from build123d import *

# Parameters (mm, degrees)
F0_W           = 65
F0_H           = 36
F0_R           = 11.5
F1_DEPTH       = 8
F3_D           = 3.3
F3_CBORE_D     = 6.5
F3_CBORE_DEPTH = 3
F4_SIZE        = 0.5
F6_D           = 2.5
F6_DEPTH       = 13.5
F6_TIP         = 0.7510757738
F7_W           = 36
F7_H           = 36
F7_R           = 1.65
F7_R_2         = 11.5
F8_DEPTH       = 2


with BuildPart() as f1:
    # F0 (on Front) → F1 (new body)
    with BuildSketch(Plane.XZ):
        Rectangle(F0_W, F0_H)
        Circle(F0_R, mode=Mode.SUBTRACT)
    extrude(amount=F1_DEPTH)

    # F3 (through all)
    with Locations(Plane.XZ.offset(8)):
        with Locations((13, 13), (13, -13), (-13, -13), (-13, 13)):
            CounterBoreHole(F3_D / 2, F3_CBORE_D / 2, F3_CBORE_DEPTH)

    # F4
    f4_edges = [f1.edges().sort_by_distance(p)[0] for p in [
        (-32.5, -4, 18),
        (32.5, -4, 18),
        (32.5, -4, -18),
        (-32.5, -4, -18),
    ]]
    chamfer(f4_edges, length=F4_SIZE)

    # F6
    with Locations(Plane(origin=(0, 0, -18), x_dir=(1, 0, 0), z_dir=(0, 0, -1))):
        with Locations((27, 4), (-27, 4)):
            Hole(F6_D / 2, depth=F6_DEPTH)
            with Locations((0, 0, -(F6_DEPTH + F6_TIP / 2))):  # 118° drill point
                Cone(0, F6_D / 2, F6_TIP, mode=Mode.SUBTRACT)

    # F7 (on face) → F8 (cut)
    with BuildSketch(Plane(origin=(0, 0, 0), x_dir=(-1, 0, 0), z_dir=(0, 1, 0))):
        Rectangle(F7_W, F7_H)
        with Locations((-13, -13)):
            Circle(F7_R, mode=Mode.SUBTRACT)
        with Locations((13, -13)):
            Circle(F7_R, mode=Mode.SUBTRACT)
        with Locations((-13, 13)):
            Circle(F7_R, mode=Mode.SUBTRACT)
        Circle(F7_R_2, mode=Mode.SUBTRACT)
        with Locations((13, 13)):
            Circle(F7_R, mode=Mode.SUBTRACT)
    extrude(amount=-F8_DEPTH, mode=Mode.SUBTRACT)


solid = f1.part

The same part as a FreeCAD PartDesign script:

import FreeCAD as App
import Part
import Sketcher
from FreeCAD import Vector


def edges_at(feature, points):
    """Names of the edges that pass closest to the given points."""
    edges = feature.Shape.Edges
    near = lambda p: min(range(len(edges)), key=lambda i: edges[i].distToShape(Part.Vertex(*p))[0])
    return sorted({f"Edge{near(p) + 1}" for p in points})


def add_polygon(sketch, points):
    """Adds a closed chain of lines whose ends are joined by coincident constraints."""
    first, n = sketch.GeometryCount, len(points)
    for a, b in zip(points, points[1:] + points[:1]):
        sketch.addGeometry(Part.LineSegment(App.Vector(*a, 0), App.Vector(*b, 0)), False)
    for i in range(n):
        sketch.addConstraint(Sketcher.Constraint("Coincident", first + i, 2, first + (i + 1) % n, 1))

doc = App.newDocument("Part")
body = doc.addObject("PartDesign::Body", "Body")

# Sketch on XZ plane
sketch1 = doc.addObject("Sketcher::SketchObject", "Sketch")
body.addObject(sketch1)
sketch1.AttachmentSupport = (doc.XZ_Plane, [""])
sketch1.MapMode = "FlatFace"
add_polygon(sketch1, [(-32, 18), (-32, -18), (32, -18), (32, 18)])  # lines 0-3
sketch1.addGeometry(Part.Circle(Vector(0, 0, 0), Vector(0, 0, 1), 12), False)  # 4
sketch1.addConstraint([
    Sketcher.Constraint("Vertical", 0),
    Sketcher.Constraint("Horizontal", 1),
    Sketcher.Constraint("Vertical", 2),
    Sketcher.Constraint("Horizontal", 3),
    Sketcher.Constraint("Coincident", 4, 3, -1, 1),
    Sketcher.Constraint("Symmetric", 0, 2, 2, 2, -1, 1),
    Sketcher.Constraint("Diameter", 4, 23.0),
    Sketcher.Constraint("DistanceX", 1, 1, 1, 2, 65.0),
    Sketcher.Constraint("DistanceY", 0, 2, 0, 1, 36.0),
])
pad1 = doc.addObject("PartDesign::Pad", "Pad")
body.addObject(pad1)
pad1.Profile = sketch1
pad1.Length = 8

# Sketch on XZ plane
sketch2 = doc.addObject("Sketcher::SketchObject", "Sketch001")
body.addObject(sketch2)
sketch2.AttachmentSupport = (doc.XZ_Plane, [""])
sketch2.MapMode = "FlatFace"
sketch2.AttachmentOffset = App.Placement(Vector(0, 0, 8), App.Rotation())
sketch2.addGeometry([
    Part.Circle(Vector(13, 13, 0), Vector(0, 0, 1), 1.6),
    Part.Circle(Vector(13, -13, 0), Vector(0, 0, 1), 1.6),
    Part.Circle(Vector(-13, -13, 0), Vector(0, 0, 1), 1.6),
    Part.Circle(Vector(-13, 13, 0), Vector(0, 0, 1), 1.6),
], False)
sketch2.addConstraint([
    Sketcher.Constraint("Equal", 0, 1),
    Sketcher.Constraint("Equal", 1, 2),
    Sketcher.Constraint("Equal", 2, 3),
    Sketcher.Constraint("Symmetric", 0, 3, 2, 3, -1, 1),
    Sketcher.Constraint("Symmetric", 1, 3, 3, 3, -1, 1),
    Sketcher.Constraint("Symmetric", 1, 3, 2, 3, -2),
    Sketcher.Constraint("Diameter", 0, 3.3),
    Sketcher.Constraint("DistanceX", -1, 1, 0, 3, 13.0),
    Sketcher.Constraint("DistanceY", -1, 1, 0, 3, 13.0),
])
doc.recompute()
hole = doc.addObject("PartDesign::Hole", "Hole")
body.addObject(hole)
hole.Profile = sketch2
hole.ThreadType = "None"
hole.Diameter = 3.3
hole.DepthType = "ThroughAll"
hole.HoleCutType = "Counterbore"
hole.HoleCutDiameter = 6.5
hole.HoleCutDepth = 3
doc.recompute()

chamfer = doc.addObject("PartDesign::Chamfer", "Chamfer")
body.addObject(chamfer)
chamfer.Base = (hole, edges_at(hole, [
    (-32.5, -4, 18),
    (32.5, -4, 18),
    (32.5, -4, -18),
    (-32.5, -4, -18),
]))
chamfer.Size = 0.5

# Sketch on XY plane
sketch3 = doc.addObject("Sketcher::SketchObject", "Sketch002")
body.addObject(sketch3)
sketch3.AttachmentSupport = (doc.XY_Plane, [""])
sketch3.MapMode = "FlatFace"
sketch3.AttachmentOffset = App.Placement(Vector(0, 0, -18), App.Rotation())
sketch3.addGeometry([
    Part.Circle(Vector(27, -4, 0), Vector(0, 0, 1), 1.2),
    Part.Circle(Vector(-27, -4, 0), Vector(0, 0, 1), 1.2),
], False)
sketch3.addConstraint([
    Sketcher.Constraint("Equal", 0, 1),
    Sketcher.Constraint("Symmetric", 0, 3, 1, 3, -2),
    Sketcher.Constraint("Diameter", 0, 2.5),
    Sketcher.Constraint("DistanceX", -1, 1, 0, 3, 27.0),
    Sketcher.Constraint("DistanceY", 0, 3, -1, 1, 4.0),
])
doc.recompute()
hole2 = doc.addObject("PartDesign::Hole", "Hole001")
body.addObject(hole2)
hole2.Profile = sketch3
hole2.ThreadType = "None"
hole2.Diameter = 2.5
hole2.DepthType = "Dimension"
hole2.Depth = 13.5
hole2.DrillPoint = "Angled"
hole2.DrillPointAngle = 118
hole2.Reversed = True

# Sketch on XZ plane
sketch4 = doc.addObject("Sketcher::SketchObject", "Sketch003")
body.addObject(sketch4)
sketch4.AttachmentSupport = (doc.XZ_Plane, [""])
sketch4.MapMode = "FlatFace"
add_polygon(sketch4, [(18, 18), (18, -18), (-18, -18), (-18, 18)])  # lines 0-3
sketch4.addGeometry(Part.Circle(Vector(13, -13, 0), Vector(0, 0, 1), 1.6), False)  # 4
sketch4.addGeometry(Part.Circle(Vector(-13, -13, 0), Vector(0, 0, 1), 1.6), False)  # 5
sketch4.addGeometry(Part.Circle(Vector(13, 13, 0), Vector(0, 0, 1), 1.6), False)  # 6
sketch4.addGeometry(Part.Circle(Vector(0, 0, 0), Vector(0, 0, 1), 11.5), False)  # 7
sketch4.addGeometry(Part.Circle(Vector(-13, 13, 0), Vector(0, 0, 1), 1.6), False)  # 8
sketch4.addConstraint([
    Sketcher.Constraint("Vertical", 0),
    Sketcher.Constraint("Horizontal", 1),
    Sketcher.Constraint("Vertical", 2),
    Sketcher.Constraint("Horizontal", 3),
    Sketcher.Constraint("Coincident", 7, 3, -1, 1),
    Sketcher.Constraint("Equal", 4, 5),
    Sketcher.Constraint("Equal", 5, 6),
    Sketcher.Constraint("Equal", 6, 8),
    Sketcher.Constraint("Symmetric", 5, 3, 6, 3, -1, 1),
    Sketcher.Constraint("Symmetric", 4, 3, 8, 3, -1, 1),
    Sketcher.Constraint("Symmetric", 0, 2, 2, 2, -1, 1),
    Sketcher.Constraint("Symmetric", 4, 3, 5, 3, -2),
    Sketcher.Constraint("Equal", 3, 0),
    Sketcher.Constraint("Diameter", 7, 23.0),
    Sketcher.Constraint("Diameter", 4, 3.3),
    Sketcher.Constraint("DistanceX", 1, 2, 1, 1, 36.0),
    Sketcher.Constraint("DistanceX", -1, 1, 4, 3, 13.0),
    Sketcher.Constraint("DistanceY", 4, 3, -1, 1, 13.0),
])
pocket1 = doc.addObject("PartDesign::Pocket", "Pocket")
body.addObject(pocket1)
pocket1.Profile = sketch4
pocket1.Length = 2
pocket1.Reversed = True

doc.recompute()
